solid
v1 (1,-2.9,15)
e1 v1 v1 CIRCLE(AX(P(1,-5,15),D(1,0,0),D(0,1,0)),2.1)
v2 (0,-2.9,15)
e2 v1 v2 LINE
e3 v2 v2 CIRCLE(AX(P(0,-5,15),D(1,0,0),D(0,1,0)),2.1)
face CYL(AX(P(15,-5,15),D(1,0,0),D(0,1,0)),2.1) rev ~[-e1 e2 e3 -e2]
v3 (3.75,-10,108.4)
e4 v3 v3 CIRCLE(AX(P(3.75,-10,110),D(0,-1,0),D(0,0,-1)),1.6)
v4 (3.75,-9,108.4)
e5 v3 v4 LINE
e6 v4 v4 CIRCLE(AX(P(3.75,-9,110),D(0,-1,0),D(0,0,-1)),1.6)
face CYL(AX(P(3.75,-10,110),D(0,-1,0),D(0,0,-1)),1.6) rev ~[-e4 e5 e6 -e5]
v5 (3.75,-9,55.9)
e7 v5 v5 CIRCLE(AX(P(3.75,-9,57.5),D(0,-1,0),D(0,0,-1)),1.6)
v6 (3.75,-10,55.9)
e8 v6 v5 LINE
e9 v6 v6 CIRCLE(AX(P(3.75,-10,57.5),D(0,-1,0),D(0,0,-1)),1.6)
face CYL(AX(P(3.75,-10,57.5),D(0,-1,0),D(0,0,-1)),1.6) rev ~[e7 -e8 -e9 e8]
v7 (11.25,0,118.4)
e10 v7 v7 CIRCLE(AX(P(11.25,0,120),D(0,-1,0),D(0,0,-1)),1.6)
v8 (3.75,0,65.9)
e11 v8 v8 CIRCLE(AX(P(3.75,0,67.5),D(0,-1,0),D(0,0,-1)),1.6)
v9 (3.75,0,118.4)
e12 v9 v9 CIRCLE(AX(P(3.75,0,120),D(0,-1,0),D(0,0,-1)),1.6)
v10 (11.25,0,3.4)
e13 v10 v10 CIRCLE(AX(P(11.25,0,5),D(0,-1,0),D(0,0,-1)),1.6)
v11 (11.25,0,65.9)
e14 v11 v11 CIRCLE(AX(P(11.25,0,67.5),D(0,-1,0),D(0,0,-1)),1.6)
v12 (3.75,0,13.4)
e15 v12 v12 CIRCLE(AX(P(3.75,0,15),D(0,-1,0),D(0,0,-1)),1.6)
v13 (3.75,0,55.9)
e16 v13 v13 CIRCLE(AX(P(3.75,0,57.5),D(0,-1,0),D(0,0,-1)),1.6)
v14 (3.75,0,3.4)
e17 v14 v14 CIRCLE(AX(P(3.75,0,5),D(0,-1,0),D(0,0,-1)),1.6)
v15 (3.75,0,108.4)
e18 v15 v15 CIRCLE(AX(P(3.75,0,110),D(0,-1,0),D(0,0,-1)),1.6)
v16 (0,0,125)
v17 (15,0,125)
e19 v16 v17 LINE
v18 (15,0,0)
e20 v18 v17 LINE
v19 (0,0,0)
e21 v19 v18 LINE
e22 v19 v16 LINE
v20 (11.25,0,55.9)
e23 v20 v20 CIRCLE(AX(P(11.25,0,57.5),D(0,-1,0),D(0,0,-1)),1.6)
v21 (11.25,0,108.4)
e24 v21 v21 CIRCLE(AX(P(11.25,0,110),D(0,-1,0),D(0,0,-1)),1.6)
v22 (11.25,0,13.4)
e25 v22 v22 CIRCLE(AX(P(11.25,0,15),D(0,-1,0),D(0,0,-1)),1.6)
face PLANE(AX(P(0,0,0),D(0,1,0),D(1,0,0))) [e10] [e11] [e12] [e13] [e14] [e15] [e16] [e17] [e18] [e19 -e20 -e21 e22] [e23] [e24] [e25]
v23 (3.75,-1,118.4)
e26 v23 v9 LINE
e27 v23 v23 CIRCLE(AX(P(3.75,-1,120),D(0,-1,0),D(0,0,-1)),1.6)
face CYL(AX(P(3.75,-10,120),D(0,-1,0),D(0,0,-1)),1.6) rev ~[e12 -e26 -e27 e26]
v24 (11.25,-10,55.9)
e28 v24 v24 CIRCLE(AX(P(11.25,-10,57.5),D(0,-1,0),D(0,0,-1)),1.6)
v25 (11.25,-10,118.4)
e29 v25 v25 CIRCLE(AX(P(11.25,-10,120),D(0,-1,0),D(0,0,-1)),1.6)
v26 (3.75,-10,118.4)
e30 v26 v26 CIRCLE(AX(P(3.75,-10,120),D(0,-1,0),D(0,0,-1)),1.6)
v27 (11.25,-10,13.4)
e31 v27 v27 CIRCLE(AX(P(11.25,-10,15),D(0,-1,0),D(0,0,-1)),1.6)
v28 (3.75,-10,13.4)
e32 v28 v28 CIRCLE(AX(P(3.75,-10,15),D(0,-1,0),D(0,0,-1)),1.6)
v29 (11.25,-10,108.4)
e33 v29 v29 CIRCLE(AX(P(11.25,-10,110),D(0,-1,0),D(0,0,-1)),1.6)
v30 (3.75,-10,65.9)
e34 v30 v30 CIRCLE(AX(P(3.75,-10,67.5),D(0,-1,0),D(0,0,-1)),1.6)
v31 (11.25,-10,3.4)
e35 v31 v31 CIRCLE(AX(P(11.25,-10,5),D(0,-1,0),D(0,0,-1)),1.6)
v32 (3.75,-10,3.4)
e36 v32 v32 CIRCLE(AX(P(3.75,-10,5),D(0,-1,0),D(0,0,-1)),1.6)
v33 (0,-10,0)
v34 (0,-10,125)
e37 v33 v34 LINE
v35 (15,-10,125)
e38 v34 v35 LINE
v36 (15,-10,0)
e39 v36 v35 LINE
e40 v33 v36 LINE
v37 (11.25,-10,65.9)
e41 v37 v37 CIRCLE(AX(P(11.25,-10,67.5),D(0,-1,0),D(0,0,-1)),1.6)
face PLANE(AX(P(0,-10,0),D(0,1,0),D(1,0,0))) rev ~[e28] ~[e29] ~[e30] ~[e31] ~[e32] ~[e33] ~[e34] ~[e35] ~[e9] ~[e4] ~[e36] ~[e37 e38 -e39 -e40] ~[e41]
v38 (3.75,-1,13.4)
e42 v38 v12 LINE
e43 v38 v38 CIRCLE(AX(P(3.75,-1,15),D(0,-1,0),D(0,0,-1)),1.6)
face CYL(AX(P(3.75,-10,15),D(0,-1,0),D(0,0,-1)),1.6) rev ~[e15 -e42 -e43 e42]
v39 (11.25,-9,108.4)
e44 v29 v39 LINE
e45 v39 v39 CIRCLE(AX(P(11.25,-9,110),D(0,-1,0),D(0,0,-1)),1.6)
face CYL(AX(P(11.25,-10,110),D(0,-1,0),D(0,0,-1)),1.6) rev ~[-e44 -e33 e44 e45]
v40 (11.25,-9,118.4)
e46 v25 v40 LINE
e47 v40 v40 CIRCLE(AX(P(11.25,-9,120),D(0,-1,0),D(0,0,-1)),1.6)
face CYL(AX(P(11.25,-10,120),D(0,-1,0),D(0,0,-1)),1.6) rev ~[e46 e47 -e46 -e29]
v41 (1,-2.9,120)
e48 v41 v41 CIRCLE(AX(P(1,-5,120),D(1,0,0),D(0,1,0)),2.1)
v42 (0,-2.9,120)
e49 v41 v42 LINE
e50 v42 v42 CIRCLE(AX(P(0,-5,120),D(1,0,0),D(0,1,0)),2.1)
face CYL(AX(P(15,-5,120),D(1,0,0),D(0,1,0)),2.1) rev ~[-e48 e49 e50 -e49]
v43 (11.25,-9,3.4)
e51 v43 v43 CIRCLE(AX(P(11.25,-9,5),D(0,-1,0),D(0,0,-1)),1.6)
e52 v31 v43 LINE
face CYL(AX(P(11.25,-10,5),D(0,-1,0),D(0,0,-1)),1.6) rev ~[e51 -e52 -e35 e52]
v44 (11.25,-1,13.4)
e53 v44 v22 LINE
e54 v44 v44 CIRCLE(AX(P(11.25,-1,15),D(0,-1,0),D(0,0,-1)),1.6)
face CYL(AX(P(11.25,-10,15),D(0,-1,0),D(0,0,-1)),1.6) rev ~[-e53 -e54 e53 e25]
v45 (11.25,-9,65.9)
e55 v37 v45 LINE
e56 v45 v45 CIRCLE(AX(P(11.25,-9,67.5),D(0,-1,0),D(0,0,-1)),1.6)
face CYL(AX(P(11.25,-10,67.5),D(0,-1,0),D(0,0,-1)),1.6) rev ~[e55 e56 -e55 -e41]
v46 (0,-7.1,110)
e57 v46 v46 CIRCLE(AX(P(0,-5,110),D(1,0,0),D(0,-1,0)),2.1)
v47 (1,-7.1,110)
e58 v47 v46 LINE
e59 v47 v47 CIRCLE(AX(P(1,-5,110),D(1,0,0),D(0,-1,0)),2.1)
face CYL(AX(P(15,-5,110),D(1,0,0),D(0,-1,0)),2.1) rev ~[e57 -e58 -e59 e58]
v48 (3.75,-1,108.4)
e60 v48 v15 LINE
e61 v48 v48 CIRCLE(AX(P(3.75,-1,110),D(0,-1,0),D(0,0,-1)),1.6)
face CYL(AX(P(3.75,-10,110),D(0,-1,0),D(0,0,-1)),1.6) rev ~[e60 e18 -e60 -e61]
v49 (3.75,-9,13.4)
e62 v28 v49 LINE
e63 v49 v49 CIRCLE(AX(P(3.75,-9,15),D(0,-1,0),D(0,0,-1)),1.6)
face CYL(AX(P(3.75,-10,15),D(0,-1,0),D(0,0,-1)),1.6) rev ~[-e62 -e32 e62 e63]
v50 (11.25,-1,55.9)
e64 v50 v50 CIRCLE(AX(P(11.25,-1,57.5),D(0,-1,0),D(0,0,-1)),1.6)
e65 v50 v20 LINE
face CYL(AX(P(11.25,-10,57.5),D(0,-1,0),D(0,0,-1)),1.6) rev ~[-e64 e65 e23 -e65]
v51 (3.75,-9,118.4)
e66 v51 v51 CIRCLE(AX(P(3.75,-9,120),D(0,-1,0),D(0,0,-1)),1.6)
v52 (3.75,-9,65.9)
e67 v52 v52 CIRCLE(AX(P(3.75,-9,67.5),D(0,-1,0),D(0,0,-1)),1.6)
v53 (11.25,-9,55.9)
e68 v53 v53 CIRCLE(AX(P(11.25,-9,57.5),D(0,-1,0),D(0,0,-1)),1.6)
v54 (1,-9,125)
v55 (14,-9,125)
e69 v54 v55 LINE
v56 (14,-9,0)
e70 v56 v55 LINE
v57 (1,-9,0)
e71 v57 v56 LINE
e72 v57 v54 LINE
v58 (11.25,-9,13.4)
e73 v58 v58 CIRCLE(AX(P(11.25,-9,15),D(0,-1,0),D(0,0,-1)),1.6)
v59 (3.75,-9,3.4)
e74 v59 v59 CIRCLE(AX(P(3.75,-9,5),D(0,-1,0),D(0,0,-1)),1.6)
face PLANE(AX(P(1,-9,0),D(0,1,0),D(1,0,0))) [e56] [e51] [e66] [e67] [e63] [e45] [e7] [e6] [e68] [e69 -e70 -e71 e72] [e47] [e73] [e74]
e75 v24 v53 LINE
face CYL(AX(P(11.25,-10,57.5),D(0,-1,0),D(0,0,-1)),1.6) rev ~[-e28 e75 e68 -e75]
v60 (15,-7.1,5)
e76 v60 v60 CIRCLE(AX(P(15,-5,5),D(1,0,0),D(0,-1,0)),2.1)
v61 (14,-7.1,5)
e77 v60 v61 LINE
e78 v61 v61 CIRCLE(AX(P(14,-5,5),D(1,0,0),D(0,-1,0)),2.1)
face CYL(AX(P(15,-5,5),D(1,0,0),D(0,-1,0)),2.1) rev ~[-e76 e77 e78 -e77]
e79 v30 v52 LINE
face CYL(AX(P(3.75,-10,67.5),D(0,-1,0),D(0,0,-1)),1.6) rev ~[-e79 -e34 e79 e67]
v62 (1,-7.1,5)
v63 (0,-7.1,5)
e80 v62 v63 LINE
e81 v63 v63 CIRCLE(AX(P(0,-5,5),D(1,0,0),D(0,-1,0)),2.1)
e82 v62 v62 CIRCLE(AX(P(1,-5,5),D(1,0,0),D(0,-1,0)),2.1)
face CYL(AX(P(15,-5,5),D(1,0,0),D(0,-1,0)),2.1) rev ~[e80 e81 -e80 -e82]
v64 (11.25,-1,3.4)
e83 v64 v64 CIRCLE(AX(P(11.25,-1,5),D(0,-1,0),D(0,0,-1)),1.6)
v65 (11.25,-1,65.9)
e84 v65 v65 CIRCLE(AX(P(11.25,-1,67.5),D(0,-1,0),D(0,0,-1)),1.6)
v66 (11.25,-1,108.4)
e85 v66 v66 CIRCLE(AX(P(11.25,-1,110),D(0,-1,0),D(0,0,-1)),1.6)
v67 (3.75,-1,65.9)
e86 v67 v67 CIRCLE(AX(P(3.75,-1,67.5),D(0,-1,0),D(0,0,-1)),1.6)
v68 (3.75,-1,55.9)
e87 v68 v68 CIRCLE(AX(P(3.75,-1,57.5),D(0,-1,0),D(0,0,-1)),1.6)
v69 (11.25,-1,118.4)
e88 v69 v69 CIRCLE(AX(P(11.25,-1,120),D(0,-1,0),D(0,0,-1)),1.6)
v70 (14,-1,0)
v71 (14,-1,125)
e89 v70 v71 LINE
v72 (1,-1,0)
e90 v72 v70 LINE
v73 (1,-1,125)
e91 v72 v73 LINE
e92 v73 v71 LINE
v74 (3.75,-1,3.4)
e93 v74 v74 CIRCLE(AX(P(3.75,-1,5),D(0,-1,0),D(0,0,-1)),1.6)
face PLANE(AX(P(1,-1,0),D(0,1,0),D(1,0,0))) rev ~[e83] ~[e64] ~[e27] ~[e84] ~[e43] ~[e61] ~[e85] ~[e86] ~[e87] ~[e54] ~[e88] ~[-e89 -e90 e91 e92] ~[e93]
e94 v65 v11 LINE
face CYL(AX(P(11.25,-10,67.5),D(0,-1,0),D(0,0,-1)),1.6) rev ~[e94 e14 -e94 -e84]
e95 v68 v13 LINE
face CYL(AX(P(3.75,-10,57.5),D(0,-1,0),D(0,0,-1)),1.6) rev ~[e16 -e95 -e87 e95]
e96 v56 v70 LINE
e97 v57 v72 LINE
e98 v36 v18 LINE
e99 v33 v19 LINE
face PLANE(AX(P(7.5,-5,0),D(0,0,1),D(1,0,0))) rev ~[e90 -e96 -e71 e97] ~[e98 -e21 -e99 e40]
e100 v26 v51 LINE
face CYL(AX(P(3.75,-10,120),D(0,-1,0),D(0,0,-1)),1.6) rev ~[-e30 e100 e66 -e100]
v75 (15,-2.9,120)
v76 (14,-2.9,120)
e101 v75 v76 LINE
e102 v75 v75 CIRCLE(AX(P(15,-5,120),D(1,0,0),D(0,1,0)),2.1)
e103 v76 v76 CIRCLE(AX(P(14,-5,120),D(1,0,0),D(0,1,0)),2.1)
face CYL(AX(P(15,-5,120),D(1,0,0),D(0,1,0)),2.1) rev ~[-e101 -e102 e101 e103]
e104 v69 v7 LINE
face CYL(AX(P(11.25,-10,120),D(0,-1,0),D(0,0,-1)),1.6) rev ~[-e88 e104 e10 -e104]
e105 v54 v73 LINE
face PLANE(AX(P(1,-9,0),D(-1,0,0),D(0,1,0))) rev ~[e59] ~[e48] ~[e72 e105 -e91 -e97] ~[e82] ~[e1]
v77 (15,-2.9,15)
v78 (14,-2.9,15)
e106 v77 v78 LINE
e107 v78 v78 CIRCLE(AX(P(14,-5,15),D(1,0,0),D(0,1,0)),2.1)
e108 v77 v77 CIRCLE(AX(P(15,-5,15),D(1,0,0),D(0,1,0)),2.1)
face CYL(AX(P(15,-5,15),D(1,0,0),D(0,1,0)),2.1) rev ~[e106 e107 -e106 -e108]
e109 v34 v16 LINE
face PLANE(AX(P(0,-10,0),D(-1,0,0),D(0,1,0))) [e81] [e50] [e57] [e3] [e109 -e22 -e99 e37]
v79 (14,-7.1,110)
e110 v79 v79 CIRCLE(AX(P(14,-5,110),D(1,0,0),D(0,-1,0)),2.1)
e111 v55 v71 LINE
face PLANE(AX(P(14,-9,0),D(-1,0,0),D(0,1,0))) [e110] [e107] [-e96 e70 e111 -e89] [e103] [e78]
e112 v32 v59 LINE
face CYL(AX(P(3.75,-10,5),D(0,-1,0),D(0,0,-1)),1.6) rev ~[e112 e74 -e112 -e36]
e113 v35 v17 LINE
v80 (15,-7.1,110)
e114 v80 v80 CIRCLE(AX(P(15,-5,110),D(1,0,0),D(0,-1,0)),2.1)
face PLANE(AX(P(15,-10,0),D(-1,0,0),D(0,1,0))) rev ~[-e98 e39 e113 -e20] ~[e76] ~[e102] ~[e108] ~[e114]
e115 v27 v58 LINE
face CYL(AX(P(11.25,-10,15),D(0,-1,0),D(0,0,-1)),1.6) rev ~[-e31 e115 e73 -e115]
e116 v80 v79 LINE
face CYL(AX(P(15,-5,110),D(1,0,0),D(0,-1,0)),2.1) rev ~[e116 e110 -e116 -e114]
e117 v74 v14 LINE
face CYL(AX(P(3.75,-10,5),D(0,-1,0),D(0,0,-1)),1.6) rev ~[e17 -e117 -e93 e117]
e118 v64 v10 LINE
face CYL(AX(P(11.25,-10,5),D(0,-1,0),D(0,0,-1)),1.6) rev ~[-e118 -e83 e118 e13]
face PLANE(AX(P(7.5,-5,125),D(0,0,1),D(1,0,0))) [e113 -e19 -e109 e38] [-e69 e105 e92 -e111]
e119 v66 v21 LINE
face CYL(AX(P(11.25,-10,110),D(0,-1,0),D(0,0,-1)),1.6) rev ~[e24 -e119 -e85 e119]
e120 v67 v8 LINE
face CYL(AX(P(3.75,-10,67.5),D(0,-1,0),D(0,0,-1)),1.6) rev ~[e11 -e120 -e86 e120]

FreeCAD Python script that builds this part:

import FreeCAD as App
import Part
import Sketcher
Q = App.Units.Quantity


def add_polygon(sketch, points):
    """Adds a closed chain of lines whose ends are joined by coincident constraints."""
    first, n = sketch.GeometryCount, len(points)
    for a, b in zip(points, points[1:] + points[:1]):
        sketch.addGeometry(Part.LineSegment(App.Vector(*a, 0), App.Vector(*b, 0)), False)
    for i in range(n):
        sketch.addConstraint(Sketcher.Constraint("Coincident", first + i, 2, first + (i + 1) % n, 1))

doc = App.newDocument("Part")
body = doc.addObject("PartDesign::Body", "Body")

sketch1 = body.newObject("Sketcher::SketchObject", "Sketch")
sketch1.AttachmentSupport = (doc.getObject("XY_Plane"), [""])
sketch1.MapMode = "FlatFace"
add_polygon(sketch1, [(0, 0), (0, -10), (15, -10), (15, 0)])
add_polygon(sketch1, [(14, -9), (1, -9), (1, -1), (14, -1)])
sketch1.addConstraint(Sketcher.Constraint("Vertical", 0))
sketch1.addConstraint(Sketcher.Constraint("Horizontal", 1))
sketch1.addConstraint(Sketcher.Constraint("Vertical", 2))
sketch1.addConstraint(Sketcher.Constraint("Horizontal", 3))
sketch1.addConstraint(Sketcher.Constraint("Horizontal", 4))
sketch1.addConstraint(Sketcher.Constraint("Vertical", 5))
sketch1.addConstraint(Sketcher.Constraint("Horizontal", 6))
sketch1.addConstraint(Sketcher.Constraint("Vertical", 7))
sketch1.addConstraint(Sketcher.Constraint("Coincident", 3, 2, -1, 1))
sketch1.addConstraint(Sketcher.Constraint("DistanceX", 1, 1, 1, 2, Q("15 mm")))
sketch1.addConstraint(Sketcher.Constraint("DistanceX", 4, 2, 4, 1, Q("13 mm")))
sketch1.addConstraint(Sketcher.Constraint("DistanceY", 0, 2, 0, 1, Q("10 mm")))
sketch1.addConstraint(Sketcher.Constraint("DistanceY", 5, 1, 5, 2, Q("8 mm")))
sketch1.addConstraint(Sketcher.Constraint("DistanceX", -1, 1, 4, 2, Q("1 mm")))
sketch1.addConstraint(Sketcher.Constraint("DistanceY", 4, 2, -1, 1, Q("9 mm")))
pad1 = body.newObject("PartDesign::Pad", "Pad")
pad1.Profile = sketch1
pad1.Length = 125

sketch2 = body.newObject("Sketcher::SketchObject", "Sketch001")
sketch2.AttachmentSupport = (doc.getObject("YZ_Plane"), [""])
sketch2.MapMode = "FlatFace"
sketch2.AttachmentOffset = App.Placement(App.Vector(0, 0, 15), App.Rotation())
sketch2.addGeometry(Part.Circle(App.Vector(-5, 120, 0), App.Vector(0, 0, 1), 2.1), False)
sketch2.addGeometry(Part.Circle(App.Vector(-5, 110, 0), App.Vector(0, 0, 1), 2.1), False)
sketch2.addGeometry(Part.Circle(App.Vector(-5, 15, 0), App.Vector(0, 0, 1), 2.1), False)
sketch2.addGeometry(Part.Circle(App.Vector(-5, 5, 0), App.Vector(0, 0, 1), 2.1), False)
sketch2.addConstraint(Sketcher.Constraint("Equal", 0, 1))
sketch2.addConstraint(Sketcher.Constraint("Equal", 1, 2))
sketch2.addConstraint(Sketcher.Constraint("Equal", 2, 3))
sketch2.addConstraint(Sketcher.Constraint("Vertical", 0, 3, 1, 3))
sketch2.addConstraint(Sketcher.Constraint("Vertical", 1, 3, 2, 3))
sketch2.addConstraint(Sketcher.Constraint("Vertical", 2, 3, 3, 3))
sketch2.addConstraint(Sketcher.Constraint("Diameter", 0, Q("4.2 mm")))
sketch2.addConstraint(Sketcher.Constraint("DistanceX", 0, 3, -1, 1, Q("5 mm")))
sketch2.addConstraint(Sketcher.Constraint("DistanceY", -1, 1, 0, 3, Q("120 mm")))
sketch2.addConstraint(Sketcher.Constraint("DistanceY", -1, 1, 1, 3, Q("110 mm")))
sketch2.addConstraint(Sketcher.Constraint("DistanceY", -1, 1, 2, 3, Q("15 mm")))
sketch2.addConstraint(Sketcher.Constraint("DistanceY", -1, 1, 3, 3, Q("5 mm")))
pocket1 = body.newObject("PartDesign::Pocket", "Pocket")
pocket1.Profile = sketch2
pocket1.Type = "ThroughAll"

sketch3 = body.newObject("Sketcher::SketchObject", "Sketch002")
sketch3.AttachmentSupport = (doc.getObject("XZ_Plane"), [""])
sketch3.MapMode = "FlatFace"
sketch3.AttachmentOffset = App.Placement(App.Vector(0, 0, 10), App.Rotation())
sketch3.addGeometry(Part.Circle(App.Vector(3.8, 67.5, 0), App.Vector(0, 0, 1), 1.6), False)
sketch3.addGeometry(Part.Circle(App.Vector(11.2, 67.5, 0), App.Vector(0, 0, 1), 1.6), False)
sketch3.addGeometry(Part.Circle(App.Vector(11.2, 57.5, 0), App.Vector(0, 0, 1), 1.6), False)
sketch3.addGeometry(Part.Circle(App.Vector(3.8, 57.5, 0), App.Vector(0, 0, 1), 1.6), False)
sketch3.addGeometry(Part.Circle(App.Vector(3.8, 120, 0), App.Vector(0, 0, 1), 1.6), False)
sketch3.addGeometry(Part.Circle(App.Vector(11.2, 120, 0), App.Vector(0, 0, 1), 1.6), False)
sketch3.addGeometry(Part.Circle(App.Vector(11.2, 110, 0), App.Vector(0, 0, 1), 1.6), False)
sketch3.addGeometry(Part.Circle(App.Vector(3.8, 110, 0), App.Vector(0, 0, 1), 1.6), False)
sketch3.addGeometry(Part.Circle(App.Vector(3.8, 15, 0), App.Vector(0, 0, 1), 1.6), False)
sketch3.addGeometry(Part.Circle(App.Vector(11.2, 15, 0), App.Vector(0, 0, 1), 1.6), False)
sketch3.addGeometry(Part.Circle(App.Vector(11.2, 5, 0), App.Vector(0, 0, 1), 1.6), False)
sketch3.addGeometry(Part.Circle(App.Vector(3.8, 5, 0), App.Vector(0, 0, 1), 1.6), False)
sketch3.addConstraint(Sketcher.Constraint("Equal", 0, 1))
sketch3.addConstraint(Sketcher.Constraint("Equal", 1, 2))
sketch3.addConstraint(Sketcher.Constraint("Equal", 2, 3))
sketch3.addConstraint(Sketcher.Constraint("Equal", 3, 4))
sketch3.addConstraint(Sketcher.Constraint("Equal", 4, 5))
sketch3.addConstraint(Sketcher.Constraint("Equal", 5, 6))
sketch3.addConstraint(Sketcher.Constraint("Equal", 6, 7))
sketch3.addConstraint(Sketcher.Constraint("Equal", 7, 8))
sketch3.addConstraint(Sketcher.Constraint("Equal", 8, 9))
sketch3.addConstraint(Sketcher.Constraint("Equal", 9, 10))
sketch3.addConstraint(Sketcher.Constraint("Equal", 10, 11))
sketch3.addConstraint(Sketcher.Constraint("Horizontal", 0, 3, 1, 3))
sketch3.addConstraint(Sketcher.Constraint("Horizontal", 2, 3, 3, 3))
sketch3.addConstraint(Sketcher.Constraint("Horizontal", 4, 3, 5, 3))
sketch3.addConstraint(Sketcher.Constraint("Horizontal", 6, 3, 7, 3))
sketch3.addConstraint(Sketcher.Constraint("Horizontal", 8, 3, 9, 3))
sketch3.addConstraint(Sketcher.Constraint("Horizontal", 10, 3, 11, 3))
sketch3.addConstraint(Sketcher.Constraint("Vertical", 1, 3, 2, 3))
sketch3.addConstraint(Sketcher.Constraint("Vertical", 0, 3, 3, 3))
sketch3.addConstraint(Sketcher.Constraint("Vertical", 3, 3, 4, 3))
sketch3.addConstraint(Sketcher.Constraint("Vertical", 2, 3, 5, 3))
sketch3.addConstraint(Sketcher.Constraint("Vertical", 5, 3, 6, 3))
sketch3.addConstraint(Sketcher.Constraint("Vertical", 4, 3, 7, 3))
sketch3.addConstraint(Sketcher.Constraint("Vertical", 7, 3, 8, 3))
sketch3.addConstraint(Sketcher.Constraint("Vertical", 6, 3, 9, 3))
sketch3.addConstraint(Sketcher.Constraint("Vertical", 9, 3, 10, 3))
sketch3.addConstraint(Sketcher.Constraint("Vertical", 8, 3, 11, 3))
sketch3.addConstraint(Sketcher.Constraint("Diameter", 0, Q("3.2 mm")))
sketch3.addConstraint(Sketcher.Constraint("DistanceY", -1, 1, 4, 3, Q("120 mm")))
sketch3.addConstraint(Sketcher.Constraint("DistanceY", -1, 1, 6, 3, Q("110 mm")))
sketch3.addConstraint(Sketcher.Constraint("DistanceY", -1, 1, 8, 3, Q("15 mm")))
sketch3.addConstraint(Sketcher.Constraint("DistanceY", -1, 1, 10, 3, Q("5 mm")))
sketch3.addConstraint(Sketcher.Constraint("DistanceY", 2, 3, 1, 3, Q("10 mm")))
sketch3.addConstraint(Sketcher.Constraint("DistanceY", -1, 1, 0, 3, Q("67.5 mm")))
sketch3.addConstraint(Sketcher.Constraint("DistanceX", 0, 3, 1, 3, Q("7.5 mm")))
sketch3.addConstraint(Sketcher.Constraint("DistanceX", -1, 1, 0, 3, Q("3.75 mm")))
pocket2 = body.newObject("PartDesign::Pocket", "Pocket001")
pocket2.Profile = sketch3
pocket2.Type = "ThroughAll"

doc.recompute()
